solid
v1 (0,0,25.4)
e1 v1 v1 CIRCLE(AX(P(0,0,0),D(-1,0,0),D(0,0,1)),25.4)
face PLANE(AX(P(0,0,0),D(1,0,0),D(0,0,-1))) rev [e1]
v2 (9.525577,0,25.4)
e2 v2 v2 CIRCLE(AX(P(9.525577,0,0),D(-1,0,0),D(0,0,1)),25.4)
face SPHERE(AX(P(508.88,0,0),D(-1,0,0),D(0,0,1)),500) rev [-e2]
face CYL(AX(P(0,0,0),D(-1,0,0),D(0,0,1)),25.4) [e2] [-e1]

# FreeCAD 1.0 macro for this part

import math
import FreeCAD as App
import Part
import Sketcher
from FreeCAD import Vector

doc = App.newDocument("Part")
params = doc.addObject("Spreadsheet::Sheet", "Params")
for row, (alias, value) in enumerate([
    ("sketch1_radius", "500.000001 mm"),
    ("sketch1_height", "25.4 mm"),
    ("sketch1_width", "8.88 mm"),
    ("revolution_angle", "360 deg"),
], start=1):
    params.set(f"A{row}", alias)
    params.set(f"B{row}", "=" + value)
    params.setAlias(f"B{row}", alias)

body = doc.addObject("PartDesign::Body", "Body")

sketch1 = body.newObject("Sketcher::SketchObject", "Sketch")
sketch1.AttachmentSupport = (doc.getObject("XZ_Plane"), [""])
sketch1.MapMode = "FlatFace"
sketch1.addGeometry(Part.LineSegment(Vector(0, 0, 0), Vector(9, 0, 0)), False)
sketch1.addGeometry(Part.ArcOfCircle(Part.Circle(Vector(509, 0, 0), Vector(0, 0, 1), 500), math.radians(-180), math.radians(-177.09)), False)
sketch1.addGeometry(Part.LineSegment(Vector(10, -25, 0), Vector(0, -25, 0)), False)
sketch1.addGeometry(Part.LineSegment(Vector(0, -25, 0), Vector(0, 0, 0)), False)
sketch1.addConstraint(Sketcher.Constraint("Coincident", 0, 2, 1, 1))
sketch1.addConstraint(Sketcher.Constraint("Coincident", 1, 2, 2, 1))
sketch1.addConstraint(Sketcher.Constraint("Coincident", 2, 2, 3, 1))
sketch1.addConstraint(Sketcher.Constraint("Coincident", 3, 2, 0, 1))
sketch1.addConstraint(Sketcher.Constraint("Horizontal", 0))
sketch1.addConstraint(Sketcher.Constraint("Horizontal", 2))
sketch1.addConstraint(Sketcher.Constraint("Vertical", 3))
sketch1.addConstraint(Sketcher.Constraint("Coincident", 3, 2, -1, 1))
sketch1.addConstraint(Sketcher.Constraint("PointOnObject", 1, 3, -1))
sketch1.addConstraint(Sketcher.Constraint("Radius", 1, 500.000001))
sketch1.addConstraint(Sketcher.Constraint("DistanceY", 3, 1, 3, 2, 25.4))
sketch1.addConstraint(Sketcher.Constraint("DistanceX", 0, 1, 0, 2, 8.88))
sketch1.setExpression("Constraints[9]", "Params.sketch1_radius")
sketch1.setExpression("Constraints[10]", "Params.sketch1_height")
sketch1.setExpression("Constraints[11]", "Params.sketch1_width")
revolution = body.newObject("PartDesign::Revolution", "Revolution")
revolution.Profile = sketch1
revolution.ReferenceAxis = (sketch1, ["H_Axis"])
revolution.setExpression("Angle", "Params.revolution_angle")

doc.recompute()
